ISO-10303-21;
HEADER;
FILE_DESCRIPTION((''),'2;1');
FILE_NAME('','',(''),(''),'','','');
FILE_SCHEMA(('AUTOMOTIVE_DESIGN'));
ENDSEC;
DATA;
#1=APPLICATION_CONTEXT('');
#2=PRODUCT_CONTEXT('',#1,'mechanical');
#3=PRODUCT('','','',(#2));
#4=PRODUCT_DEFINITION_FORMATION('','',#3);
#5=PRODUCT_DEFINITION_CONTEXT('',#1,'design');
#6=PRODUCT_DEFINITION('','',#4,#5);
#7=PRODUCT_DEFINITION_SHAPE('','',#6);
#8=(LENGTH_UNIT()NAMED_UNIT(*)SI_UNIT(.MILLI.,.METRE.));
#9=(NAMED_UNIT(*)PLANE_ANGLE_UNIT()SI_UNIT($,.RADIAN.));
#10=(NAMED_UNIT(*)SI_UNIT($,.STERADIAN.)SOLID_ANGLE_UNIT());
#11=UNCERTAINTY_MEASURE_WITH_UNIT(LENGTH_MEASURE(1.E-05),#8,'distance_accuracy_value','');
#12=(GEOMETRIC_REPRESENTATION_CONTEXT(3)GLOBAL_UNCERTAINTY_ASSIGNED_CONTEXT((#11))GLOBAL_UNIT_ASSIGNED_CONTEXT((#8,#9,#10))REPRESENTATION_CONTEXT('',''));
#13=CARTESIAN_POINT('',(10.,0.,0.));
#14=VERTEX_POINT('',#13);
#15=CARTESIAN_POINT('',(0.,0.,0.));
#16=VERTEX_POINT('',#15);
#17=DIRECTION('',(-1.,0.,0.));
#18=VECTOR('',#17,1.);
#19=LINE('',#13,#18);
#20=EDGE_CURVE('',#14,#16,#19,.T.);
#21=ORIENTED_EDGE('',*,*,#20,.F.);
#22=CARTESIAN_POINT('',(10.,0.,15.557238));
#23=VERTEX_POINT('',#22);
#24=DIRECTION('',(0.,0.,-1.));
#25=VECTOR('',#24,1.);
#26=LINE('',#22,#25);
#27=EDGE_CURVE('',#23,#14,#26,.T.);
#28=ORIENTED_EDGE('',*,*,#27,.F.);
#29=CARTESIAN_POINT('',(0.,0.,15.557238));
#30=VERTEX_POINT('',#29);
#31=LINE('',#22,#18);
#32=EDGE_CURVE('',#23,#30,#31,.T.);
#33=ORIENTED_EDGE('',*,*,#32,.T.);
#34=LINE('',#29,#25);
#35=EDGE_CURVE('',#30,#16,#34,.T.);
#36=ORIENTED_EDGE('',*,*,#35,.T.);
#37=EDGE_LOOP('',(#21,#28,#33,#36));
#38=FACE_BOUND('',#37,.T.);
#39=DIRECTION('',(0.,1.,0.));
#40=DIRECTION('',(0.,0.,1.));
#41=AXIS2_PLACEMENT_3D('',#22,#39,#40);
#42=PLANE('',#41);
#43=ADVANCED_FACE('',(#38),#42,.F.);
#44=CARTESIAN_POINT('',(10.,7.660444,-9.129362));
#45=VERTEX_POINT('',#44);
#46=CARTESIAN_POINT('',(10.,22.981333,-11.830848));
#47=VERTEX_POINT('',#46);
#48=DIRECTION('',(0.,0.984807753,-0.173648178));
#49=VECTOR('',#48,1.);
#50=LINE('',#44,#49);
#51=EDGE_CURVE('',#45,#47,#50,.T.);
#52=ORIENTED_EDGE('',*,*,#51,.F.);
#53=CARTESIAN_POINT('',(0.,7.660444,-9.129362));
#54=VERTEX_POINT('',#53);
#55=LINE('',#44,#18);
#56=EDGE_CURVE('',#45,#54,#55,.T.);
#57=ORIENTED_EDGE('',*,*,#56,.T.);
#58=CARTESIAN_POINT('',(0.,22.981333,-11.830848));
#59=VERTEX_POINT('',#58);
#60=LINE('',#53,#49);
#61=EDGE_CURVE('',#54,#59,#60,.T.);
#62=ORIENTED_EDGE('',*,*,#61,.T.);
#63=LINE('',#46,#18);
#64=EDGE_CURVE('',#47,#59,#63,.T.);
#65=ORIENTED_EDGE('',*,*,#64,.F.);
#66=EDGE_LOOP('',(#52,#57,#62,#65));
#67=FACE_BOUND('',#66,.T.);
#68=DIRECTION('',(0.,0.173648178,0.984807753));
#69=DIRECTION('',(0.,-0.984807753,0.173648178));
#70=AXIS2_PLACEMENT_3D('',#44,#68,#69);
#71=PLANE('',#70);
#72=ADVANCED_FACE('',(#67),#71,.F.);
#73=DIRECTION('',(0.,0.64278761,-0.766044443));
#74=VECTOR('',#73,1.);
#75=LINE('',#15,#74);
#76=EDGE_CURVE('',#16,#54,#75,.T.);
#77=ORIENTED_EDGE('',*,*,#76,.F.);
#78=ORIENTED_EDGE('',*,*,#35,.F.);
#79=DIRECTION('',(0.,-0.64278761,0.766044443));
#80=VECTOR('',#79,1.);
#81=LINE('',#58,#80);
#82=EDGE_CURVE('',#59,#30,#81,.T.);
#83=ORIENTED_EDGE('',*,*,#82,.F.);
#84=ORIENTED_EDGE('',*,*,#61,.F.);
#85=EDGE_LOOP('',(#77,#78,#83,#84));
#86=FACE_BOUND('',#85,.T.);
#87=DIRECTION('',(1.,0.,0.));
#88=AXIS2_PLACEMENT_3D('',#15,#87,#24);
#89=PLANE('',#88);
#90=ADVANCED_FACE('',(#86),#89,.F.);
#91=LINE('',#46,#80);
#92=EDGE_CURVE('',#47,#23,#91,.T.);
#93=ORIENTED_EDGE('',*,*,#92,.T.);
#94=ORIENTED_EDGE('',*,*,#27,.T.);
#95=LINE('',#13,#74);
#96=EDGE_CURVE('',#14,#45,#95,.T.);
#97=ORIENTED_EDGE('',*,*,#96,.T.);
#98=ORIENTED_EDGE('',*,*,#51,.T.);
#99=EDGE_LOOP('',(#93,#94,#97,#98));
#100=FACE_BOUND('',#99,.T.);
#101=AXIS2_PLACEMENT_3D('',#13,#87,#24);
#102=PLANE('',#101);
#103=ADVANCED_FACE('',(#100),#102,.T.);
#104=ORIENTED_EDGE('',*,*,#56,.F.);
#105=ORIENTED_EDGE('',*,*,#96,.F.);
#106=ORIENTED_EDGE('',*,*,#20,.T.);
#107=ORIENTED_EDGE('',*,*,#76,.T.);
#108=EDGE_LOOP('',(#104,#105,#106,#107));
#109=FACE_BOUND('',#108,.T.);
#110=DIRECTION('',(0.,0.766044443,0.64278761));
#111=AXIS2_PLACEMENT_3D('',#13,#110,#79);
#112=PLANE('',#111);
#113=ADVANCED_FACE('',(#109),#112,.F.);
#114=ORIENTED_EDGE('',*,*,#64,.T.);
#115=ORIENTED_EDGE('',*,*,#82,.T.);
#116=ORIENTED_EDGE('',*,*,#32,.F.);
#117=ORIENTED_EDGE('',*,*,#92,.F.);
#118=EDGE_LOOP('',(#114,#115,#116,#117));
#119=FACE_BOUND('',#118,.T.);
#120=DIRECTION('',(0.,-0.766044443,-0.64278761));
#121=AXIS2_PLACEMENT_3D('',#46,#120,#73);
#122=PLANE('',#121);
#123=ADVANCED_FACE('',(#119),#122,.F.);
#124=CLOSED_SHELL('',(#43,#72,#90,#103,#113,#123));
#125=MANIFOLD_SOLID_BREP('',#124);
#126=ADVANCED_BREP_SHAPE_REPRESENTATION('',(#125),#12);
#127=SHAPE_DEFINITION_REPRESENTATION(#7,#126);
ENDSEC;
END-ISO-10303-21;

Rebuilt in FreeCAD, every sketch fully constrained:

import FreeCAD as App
import Part
import Sketcher
Q = App.Units.Quantity


def add_polygon(sketch, points):
    """Adds a closed chain of lines whose ends are joined by coincident constraints."""
    first, n = sketch.GeometryCount, len(points)
    for a, b in zip(points, points[1:] + points[:1]):
        sketch.addGeometry(Part.LineSegment(App.Vector(*a, 0), App.Vector(*b, 0)), False)
    for i in range(n):
        sketch.addConstraint(Sketcher.Constraint("Coincident", first + i, 2, first + (i + 1) % n, 1))

doc = App.newDocument("Part")
params = doc.addObject("Spreadsheet::Sheet", "Params")
for row, (alias, value) in enumerate([
    ("pad1_length", "10 mm"),
], start=1):
    params.set(f"A{row}", alias)
    params.set(f"B{row}", "=" + value)
    params.setAlias(f"B{row}", alias)

body = doc.addObject("PartDesign::Body", "Body")

# Sketch on YZ plane
sketch1 = body.newObject("Sketcher::SketchObject", "Sketch")
sketch1.AttachmentSupport = (doc.getObject("YZ_Plane"), [""])
sketch1.MapMode = "FlatFace"
add_polygon(sketch1, [(0, 16), (0, 0), (8, -9), (23, -12)])  # lines 0-3
sketch1.addConstraint(Sketcher.Constraint("Vertical", 0))
sketch1.addConstraint(Sketcher.Constraint("Coincident", 0, 2, -1, 1))
sketch1.addConstraint(Sketcher.Constraint("Parallel", 1, 3))
sketch1.addConstraint(Sketcher.Constraint("Angle", 1, Q("-50 deg")))
sketch1.addConstraint(Sketcher.Constraint("Angle", 2, Q("-10 deg")))
sketch1.addConstraint(Sketcher.Constraint("DistanceY", 0, 2, 0, 1, Q("15.557238 mm")))
sketch1.addConstraint(Sketcher.Constraint("DistanceY", 1, 2, 3, 2, Q("24.6866 mm")))
pad1 = body.newObject("PartDesign::Pad", "Pad")
pad1.Profile = sketch1
pad1.setExpression("Length", "Params.pad1_length")

doc.recompute()
